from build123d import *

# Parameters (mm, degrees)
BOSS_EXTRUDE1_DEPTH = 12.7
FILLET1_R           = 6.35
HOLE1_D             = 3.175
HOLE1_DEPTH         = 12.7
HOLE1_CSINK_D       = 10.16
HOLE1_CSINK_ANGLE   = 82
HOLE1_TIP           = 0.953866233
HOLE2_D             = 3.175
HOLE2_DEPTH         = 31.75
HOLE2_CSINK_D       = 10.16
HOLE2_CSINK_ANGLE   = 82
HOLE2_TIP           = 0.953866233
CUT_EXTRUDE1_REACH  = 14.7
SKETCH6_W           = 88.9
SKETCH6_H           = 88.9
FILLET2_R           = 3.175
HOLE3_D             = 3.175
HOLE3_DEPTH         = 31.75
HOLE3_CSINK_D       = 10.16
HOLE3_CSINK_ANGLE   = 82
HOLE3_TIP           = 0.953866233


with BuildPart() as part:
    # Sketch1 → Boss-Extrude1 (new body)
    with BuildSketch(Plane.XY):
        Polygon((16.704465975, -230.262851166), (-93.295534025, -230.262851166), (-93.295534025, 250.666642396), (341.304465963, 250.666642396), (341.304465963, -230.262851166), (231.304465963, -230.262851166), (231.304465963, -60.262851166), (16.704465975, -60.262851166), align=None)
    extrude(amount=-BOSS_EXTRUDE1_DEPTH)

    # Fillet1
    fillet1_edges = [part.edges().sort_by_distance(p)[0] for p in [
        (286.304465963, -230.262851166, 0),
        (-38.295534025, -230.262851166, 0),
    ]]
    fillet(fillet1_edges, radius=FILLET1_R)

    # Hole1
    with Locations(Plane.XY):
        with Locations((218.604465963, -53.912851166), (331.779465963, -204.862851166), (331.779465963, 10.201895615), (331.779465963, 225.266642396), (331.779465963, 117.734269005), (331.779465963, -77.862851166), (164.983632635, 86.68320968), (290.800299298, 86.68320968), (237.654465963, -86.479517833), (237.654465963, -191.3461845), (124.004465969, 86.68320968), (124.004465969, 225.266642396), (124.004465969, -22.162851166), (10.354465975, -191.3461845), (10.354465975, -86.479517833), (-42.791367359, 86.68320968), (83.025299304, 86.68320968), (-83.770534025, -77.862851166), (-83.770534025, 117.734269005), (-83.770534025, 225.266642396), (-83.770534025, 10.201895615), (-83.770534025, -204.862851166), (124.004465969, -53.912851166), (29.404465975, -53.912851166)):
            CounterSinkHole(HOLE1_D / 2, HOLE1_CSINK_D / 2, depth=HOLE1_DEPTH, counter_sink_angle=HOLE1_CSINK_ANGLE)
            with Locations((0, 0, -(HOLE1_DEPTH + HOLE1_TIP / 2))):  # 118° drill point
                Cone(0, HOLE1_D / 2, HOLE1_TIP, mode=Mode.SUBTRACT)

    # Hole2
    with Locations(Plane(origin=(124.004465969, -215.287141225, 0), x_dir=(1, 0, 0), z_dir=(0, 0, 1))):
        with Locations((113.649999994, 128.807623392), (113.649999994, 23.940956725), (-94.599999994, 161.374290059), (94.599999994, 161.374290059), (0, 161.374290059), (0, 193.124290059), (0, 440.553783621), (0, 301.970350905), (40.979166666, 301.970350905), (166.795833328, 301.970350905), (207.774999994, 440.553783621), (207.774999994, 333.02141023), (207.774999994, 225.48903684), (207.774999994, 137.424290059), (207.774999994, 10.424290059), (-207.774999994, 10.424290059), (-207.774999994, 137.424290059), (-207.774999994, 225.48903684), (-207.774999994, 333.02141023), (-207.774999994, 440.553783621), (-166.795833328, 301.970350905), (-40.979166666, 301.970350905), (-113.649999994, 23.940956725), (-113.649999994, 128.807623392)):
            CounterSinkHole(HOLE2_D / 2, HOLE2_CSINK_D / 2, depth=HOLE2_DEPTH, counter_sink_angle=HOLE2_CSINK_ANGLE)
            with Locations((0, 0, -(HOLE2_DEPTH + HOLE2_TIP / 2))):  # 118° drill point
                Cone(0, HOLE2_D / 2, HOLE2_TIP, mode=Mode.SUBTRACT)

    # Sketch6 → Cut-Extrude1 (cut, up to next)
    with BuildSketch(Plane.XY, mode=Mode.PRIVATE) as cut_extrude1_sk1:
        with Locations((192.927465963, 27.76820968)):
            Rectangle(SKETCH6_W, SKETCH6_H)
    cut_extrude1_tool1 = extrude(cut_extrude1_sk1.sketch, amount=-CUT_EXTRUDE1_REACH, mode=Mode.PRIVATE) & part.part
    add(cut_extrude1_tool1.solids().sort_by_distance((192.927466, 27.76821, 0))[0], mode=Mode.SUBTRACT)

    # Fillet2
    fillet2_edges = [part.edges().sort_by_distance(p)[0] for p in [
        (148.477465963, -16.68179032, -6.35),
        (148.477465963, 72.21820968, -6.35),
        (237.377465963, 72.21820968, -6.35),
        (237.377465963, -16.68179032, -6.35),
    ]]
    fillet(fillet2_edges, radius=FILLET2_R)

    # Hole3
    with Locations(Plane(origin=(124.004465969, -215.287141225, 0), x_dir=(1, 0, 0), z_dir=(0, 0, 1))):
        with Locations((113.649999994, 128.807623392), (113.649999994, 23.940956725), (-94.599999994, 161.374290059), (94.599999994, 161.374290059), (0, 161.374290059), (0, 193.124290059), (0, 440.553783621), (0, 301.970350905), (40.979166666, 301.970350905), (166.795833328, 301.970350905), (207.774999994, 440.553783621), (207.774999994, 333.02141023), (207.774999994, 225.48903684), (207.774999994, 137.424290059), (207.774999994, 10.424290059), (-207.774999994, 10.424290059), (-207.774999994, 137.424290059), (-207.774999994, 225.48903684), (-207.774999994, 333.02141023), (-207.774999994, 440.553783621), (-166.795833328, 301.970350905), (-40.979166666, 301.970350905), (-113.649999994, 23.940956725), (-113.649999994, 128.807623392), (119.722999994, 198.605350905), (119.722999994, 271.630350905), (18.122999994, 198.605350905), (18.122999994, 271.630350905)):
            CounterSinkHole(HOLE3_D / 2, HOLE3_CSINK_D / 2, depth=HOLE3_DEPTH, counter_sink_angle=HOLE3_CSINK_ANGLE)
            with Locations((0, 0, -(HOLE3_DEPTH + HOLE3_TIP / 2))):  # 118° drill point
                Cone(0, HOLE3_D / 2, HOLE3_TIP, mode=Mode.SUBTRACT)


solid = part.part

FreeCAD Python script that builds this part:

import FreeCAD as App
import Part
import Sketcher
Q = App.Units.Quantity


def edges_at(feature, points):
    """Names of the edges that pass closest to the given points."""
    edges = feature.Shape.Edges
    near = lambda p: min(range(len(edges)), key=lambda i: edges[i].distToShape(Part.Vertex(*p))[0])
    return sorted({f"Edge{near(p) + 1}" for p in points})


def add_polygon(sketch, points):
    """Adds a closed chain of lines whose ends are joined by coincident constraints."""
    first, n = sketch.GeometryCount, len(points)
    for a, b in zip(points, points[1:] + points[:1]):
        sketch.addGeometry(Part.LineSegment(App.Vector(*a, 0), App.Vector(*b, 0)), False)
    for i in range(n):
        sketch.addConstraint(Sketcher.Constraint("Coincident", first + i, 2, first + (i + 1) % n, 1))

doc = App.newDocument("Part")
params = doc.addObject("Spreadsheet::Sheet", "Params")
for row, (alias, value) in enumerate([
    ("pad1_length", "0.5 in"),
    ("fillet_radius", "0.25 in"),
    ("sketch2_diameter", "0.125 in"),
    ("hole_diameter", "0.125 in"),
    ("hole_depth", "0.5 in"),
    ("hole_csink_diameter", "0.4 in"),
    ("sketch3_diameter", "0.125 in"),
    ("hole2_diameter", "0.125 in"),
    ("hole2_depth", "1.25 in"),
    ("hole2_csink_diameter", "0.4 in"),
    ("sketch4_width", "3.5 in"),
    ("fillet2_radius", "0.125 in"),
    ("sketch5_diameter", "0.125 in"),
    ("hole3_diameter", "0.125 in"),
    ("hole3_depth", "1.25 in"),
    ("hole3_csink_diameter", "0.4 in"),
], start=1):
    params.set(f"A{row}", alias)
    params.set(f"B{row}", "=" + value)
    params.setAlias(f"B{row}", alias)

body = doc.addObject("PartDesign::Body", "Body")

# Sketch on XY plane
sketch1 = doc.addObject("Sketcher::SketchObject", "Sketch")
body.addObject(sketch1)
sketch1.AttachmentSupport = (doc.XY_Plane, [""])
sketch1.MapMode = "FlatFace"
add_polygon(sketch1, [(-93.295534, -230.262851), (16.704466, -230.262851), (16.704466, -60.262851), (231.304466, -60.262851), (231.304466, -230.262851), (341.304466, -230.262851), (341.304466, 250.666642), (-93.295534, 250.666642)])  # lines 0-7
sketch1.addConstraint([
    Sketcher.Constraint("Horizontal", 0),
    Sketcher.Constraint("Vertical", 1),
    Sketcher.Constraint("Horizontal", 2),
    Sketcher.Constraint("Vertical", 3),
    Sketcher.Constraint("Horizontal", 4),
    Sketcher.Constraint("Vertical", 5),
    Sketcher.Constraint("Horizontal", 6),
    Sketcher.Constraint("Vertical", 7),
    Sketcher.Constraint("Horizontal", 0, 2, 3, 2),
    Sketcher.Constraint("Equal", 0, 4),
    Sketcher.Constraint("DistanceX", 0, 1, 0, 2, 110.0),
    Sketcher.Constraint("DistanceX", 2, 1, 2, 2, 214.6),
    Sketcher.Constraint("DistanceY", 1, 1, 1, 2, 170.0),
    Sketcher.Constraint("DistanceY", 5, 1, 5, 2, 480.929494),
    Sketcher.Constraint("DistanceY", 0, 2, -1, 1, 230.262851),
    Sketcher.Constraint("DistanceX", -1, 1, 0, 2, 16.704466),
])
pad1 = doc.addObject("PartDesign::Pad", "Pad")
body.addObject(pad1)
pad1.Profile = sketch1
pad1.setExpression("Length", "Params.pad1_length")
pad1.Reversed = True
doc.recompute()

fillet = doc.addObject("PartDesign::Fillet", "Fillet")
body.addObject(fillet)
fillet.Base = (pad1, edges_at(pad1, [(286.304, -230.263, 0), (-38.296, -230.263, 0)]))
fillet.setExpression("Radius", "Params.fillet_radius")

# Sketch on XY plane
sketch2 = doc.addObject("Sketcher::SketchObject", "Sketch001")
body.addObject(sketch2)
sketch2.AttachmentSupport = (doc.XY_Plane, [""])
sketch2.MapMode = "FlatFace"
sketch2.addGeometry([
    Part.Circle(App.Vector(218.604466, -53.912851, 0), App.Vector(0, 0, 1), 1.5875),  # 0
    Part.Circle(App.Vector(331.779466, -204.862851, 0), App.Vector(0, 0, 1), 1.5875),  # 1
    Part.Circle(App.Vector(331.779466, 10.201896, 0), App.Vector(0, 0, 1), 1.5875),  # 2
    Part.Circle(App.Vector(331.779466, 225.266642, 0), App.Vector(0, 0, 1), 1.5875),  # 3
    Part.Circle(App.Vector(331.779466, 117.734269, 0), App.Vector(0, 0, 1), 1.5875),  # 4
    Part.Circle(App.Vector(331.779466, -77.862851, 0), App.Vector(0, 0, 1), 1.5875),  # 5
    Part.Circle(App.Vector(164.983633, 86.68321, 0), App.Vector(0, 0, 1), 1.5875),  # 6
    Part.Circle(App.Vector(290.800299, 86.68321, 0), App.Vector(0, 0, 1), 1.5875),  # 7
    Part.Circle(App.Vector(237.654466, -86.479518, 0), App.Vector(0, 0, 1), 1.5875),  # 8
    Part.Circle(App.Vector(237.654466, -191.346184, 0), App.Vector(0, 0, 1), 1.5875),  # 9
    Part.Circle(App.Vector(124.004466, 86.68321, 0), App.Vector(0, 0, 1), 1.5875),  # 10
    Part.Circle(App.Vector(124.004466, 225.266642, 0), App.Vector(0, 0, 1), 1.5875),  # 11
    Part.Circle(App.Vector(124.004466, -22.162851, 0), App.Vector(0, 0, 1), 1.5875),  # 12
    Part.Circle(App.Vector(10.354466, -191.346184, 0), App.Vector(0, 0, 1), 1.5875),  # 13
    Part.Circle(App.Vector(10.354466, -86.479518, 0), App.Vector(0, 0, 1), 1.5875),  # 14
    Part.Circle(App.Vector(-42.791367, 86.68321, 0), App.Vector(0, 0, 1), 1.5875),  # 15
    Part.Circle(App.Vector(83.025299, 86.68321, 0), App.Vector(0, 0, 1), 1.5875),  # 16
    Part.Circle(App.Vector(-83.770534, -77.862851, 0), App.Vector(0, 0, 1), 1.5875),  # 17
    Part.Circle(App.Vector(-83.770534, 117.734269, 0), App.Vector(0, 0, 1), 1.5875),  # 18
    Part.Circle(App.Vector(-83.770534, 225.266642, 0), App.Vector(0, 0, 1), 1.5875),  # 19
    Part.Circle(App.Vector(-83.770534, 10.201896, 0), App.Vector(0, 0, 1), 1.5875),  # 20
    Part.Circle(App.Vector(-83.770534, -204.862851, 0), App.Vector(0, 0, 1), 1.5875),  # 21
    Part.Circle(App.Vector(124.004466, -53.912851, 0), App.Vector(0, 0, 1), 1.5875),  # 22
    Part.Circle(App.Vector(29.404466, -53.912851, 0), App.Vector(0, 0, 1), 1.5875),  # 23
], False)
sketch2.addConstraint([
    Sketcher.Constraint("Equal", 0, 1),
    Sketcher.Constraint("Equal", 1, 2),
    Sketcher.Constraint("Equal", 2, 3),
    Sketcher.Constraint("Equal", 3, 4),
    Sketcher.Constraint("Equal", 4, 5),
    Sketcher.Constraint("Equal", 5, 6),
    Sketcher.Constraint("Equal", 6, 7),
    Sketcher.Constraint("Equal", 7, 8),
    Sketcher.Constraint("Equal", 8, 9),
    Sketcher.Constraint("Equal", 9, 10),
    Sketcher.Constraint("Equal", 10, 11),
    Sketcher.Constraint("Equal", 11, 12),
    Sketcher.Constraint("Equal", 12, 13),
    Sketcher.Constraint("Equal", 13, 14),
    Sketcher.Constraint("Equal", 14, 15),
    Sketcher.Constraint("Equal", 15, 16),
    Sketcher.Constraint("Equal", 16, 17),
    Sketcher.Constraint("Equal", 17, 18),
    Sketcher.Constraint("Equal", 18, 19),
    Sketcher.Constraint("Equal", 19, 20),
    Sketcher.Constraint("Equal", 20, 21),
    Sketcher.Constraint("Equal", 21, 22),
    Sketcher.Constraint("Equal", 22, 23),
    Sketcher.Constraint("Horizontal", 6, 3, 7, 3),
    Sketcher.Constraint("Horizontal", 7, 3, 10, 3),
    Sketcher.Constraint("Horizontal", 3, 3, 11, 3),
    Sketcher.Constraint("Horizontal", 9, 3, 13, 3),
    Sketcher.Constraint("Horizontal", 8, 3, 14, 3),
    Sketcher.Constraint("Horizontal", 10, 3, 15, 3),
    Sketcher.Constraint("Horizontal", 15, 3, 16, 3),
    Sketcher.Constraint("Horizontal", 5, 3, 17, 3),
    Sketcher.Constraint("Horizontal", 4, 3, 18, 3),
    Sketcher.Constraint("Horizontal", 11, 3, 19, 3),
    Sketcher.Constraint("Horizontal", 2, 3, 20, 3),
    Sketcher.Constraint("Horizontal", 1, 3, 21, 3),
    Sketcher.Constraint("Horizontal", 0, 3, 22, 3),
    Sketcher.Constraint("Horizontal", 22, 3, 23, 3),
    Sketcher.Constraint("Vertical", 1, 3, 2, 3),
    Sketcher.Constraint("Vertical", 2, 3, 3, 3),
    Sketcher.Constraint("Vertical", 3, 3, 4, 3),
    Sketcher.Constraint("Vertical", 4, 3, 5, 3),
    Sketcher.Constraint("Vertical", 8, 3, 9, 3),
    Sketcher.Constraint("Vertical", 10, 3, 11, 3),
    Sketcher.Constraint("Vertical", 11, 3, 12, 3),
    Sketcher.Constraint("Vertical", 13, 3, 14, 3),
    Sketcher.Constraint("Vertical", 17, 3, 18, 3),
    Sketcher.Constraint("Vertical", 18, 3, 19, 3),
    Sketcher.Constraint("Vertical", 19, 3, 20, 3),
    Sketcher.Constraint("Vertical", 20, 3, 21, 3),
    Sketcher.Constraint("Vertical", 12, 3, 22, 3),
    Sketcher.Constraint("Diameter", 0, Q("0.125 in")),
    Sketcher.Constraint("DistanceY", 1, 3, 5, 3, Q("5 in")),
    Sketcher.Constraint("DistanceX", 0, 3, 8, 3, Q("0.75 in")),
    Sketcher.Constraint("DistanceY", 0, 3, 12, 3, Q("1.25 in")),
    Sketcher.Constraint("DistanceX", 14, 3, 23, 3, Q("0.75 in")),
    Sketcher.Constraint("DistanceX", -1, 1, 7, 3, 290.800299),
    Sketcher.Constraint("DistanceX", -1, 1, 16, 3, 83.025299),
    Sketcher.Constraint("DistanceX", 0, 3, 1, 3, 113.175),
    Sketcher.Constraint("DistanceY", 1, 3, 0, 3, 150.95),
    Sketcher.Constraint("DistanceX", 10, 3, 0, 3, 94.6),
    Sketcher.Constraint("DistanceX", 13, 3, 12, 3, 113.65),
    Sketcher.Constraint("DistanceX", 15, 3, 6, 3, 207.775),
    Sketcher.Constraint("DistanceX", 17, 3, 14, 3, 94.125),
    Sketcher.Constraint("DistanceY", 0, 3, -1, 1, 53.912851),
    Sketcher.Constraint("DistanceY", -1, 1, 4, 3, 117.734269),
    Sketcher.Constraint("DistanceY", -1, 1, 6, 3, 86.68321),
    Sketcher.Constraint("DistanceY", 9, 3, 2, 3, 201.54808),
    Sketcher.Constraint("DistanceX", -1, 1, 0, 3, 218.604466),
    Sketcher.Constraint("DistanceY", -1, 1, 2, 3, 10.201896),
    Sketcher.Constraint("DistanceY", -1, 1, 3, 3, 225.266642),
    Sketcher.Constraint("DistanceX", -1, 1, 6, 3, 164.983633),
    Sketcher.Constraint("DistanceY", 8, 3, -1, 1, 86.479518),
])
sketch2.setExpression("Constraints[50]", "Params.sketch2_diameter")
doc.recompute()
hole = doc.addObject("PartDesign::Hole", "Hole")
body.addObject(hole)
hole.Profile = sketch2
hole.ThreadType = "None"
hole.setExpression("Diameter", "Params.hole_diameter")
hole.DepthType = "Dimension"
hole.setExpression("Depth", "Params.hole_depth")
hole.DrillPoint = "Angled"
hole.DrillPointAngle = 118
hole.HoleCutType = "Countersink"
hole.setExpression("HoleCutDiameter", "Params.hole_csink_diameter")
hole.HoleCutCountersinkAngle = 82

# Sketch on XY plane
sketch3 = doc.addObject("Sketcher::SketchObject", "Sketch002")
body.addObject(sketch3)
sketch3.AttachmentSupport = (doc.XY_Plane, [""])
sketch3.MapMode = "FlatFace"
sketch3.addGeometry([
    Part.Circle(App.Vector(237.654466, -86.479518, 0), App.Vector(0, 0, 1), 1.5875),  # 0
    Part.Circle(App.Vector(237.654466, -191.346184, 0), App.Vector(0, 0, 1), 1.5875),  # 1
    Part.Circle(App.Vector(29.404466, -53.912851, 0), App.Vector(0, 0, 1), 1.5875),  # 2
    Part.Circle(App.Vector(218.604466, -53.912851, 0), App.Vector(0, 0, 1), 1.5875),  # 3
    Part.Circle(App.Vector(124.004466, -53.912851, 0), App.Vector(0, 0, 1), 1.5875),  # 4
    Part.Circle(App.Vector(124.004466, -22.162851, 0), App.Vector(0, 0, 1), 1.5875),  # 5
    Part.Circle(App.Vector(124.004466, 225.266642, 0), App.Vector(0, 0, 1), 1.5875),  # 6
    Part.Circle(App.Vector(124.004466, 86.68321, 0), App.Vector(0, 0, 1), 1.5875),  # 7
    Part.Circle(App.Vector(164.983633, 86.68321, 0), App.Vector(0, 0, 1), 1.5875),  # 8
    Part.Circle(App.Vector(290.800299, 86.68321, 0), App.Vector(0, 0, 1), 1.5875),  # 9
    Part.Circle(App.Vector(331.779466, 225.266642, 0), App.Vector(0, 0, 1), 1.5875),  # 10
    Part.Circle(App.Vector(331.779466, 117.734269, 0), App.Vector(0, 0, 1), 1.5875),  # 11
    Part.Circle(App.Vector(331.779466, 10.201896, 0), App.Vector(0, 0, 1), 1.5875),  # 12
    Part.Circle(App.Vector(331.779466, -77.862851, 0), App.Vector(0, 0, 1), 1.5875),  # 13
    Part.Circle(App.Vector(331.779466, -204.862851, 0), App.Vector(0, 0, 1), 1.5875),  # 14
    Part.Circle(App.Vector(-83.770534, -204.862851, 0), App.Vector(0, 0, 1), 1.5875),  # 15
    Part.Circle(App.Vector(-83.770534, -77.862851, 0), App.Vector(0, 0, 1), 1.5875),  # 16
    Part.Circle(App.Vector(-83.770534, 10.201896, 0), App.Vector(0, 0, 1), 1.5875),  # 17
    Part.Circle(App.Vector(-83.770534, 117.734269, 0), App.Vector(0, 0, 1), 1.5875),  # 18
    Part.Circle(App.Vector(-83.770534, 225.266642, 0), App.Vector(0, 0, 1), 1.5875),  # 19
    Part.Circle(App.Vector(-42.791367, 86.68321, 0), App.Vector(0, 0, 1), 1.5875),  # 20
    Part.Circle(App.Vector(83.025299, 86.68321, 0), App.Vector(0, 0, 1), 1.5875),  # 21
    Part.Circle(App.Vector(10.354466, -191.346184, 0), App.Vector(0, 0, 1), 1.5875),  # 22
    Part.Circle(App.Vector(10.354466, -86.479518, 0), App.Vector(0, 0, 1), 1.5875),  # 23
], False)
sketch3.addConstraint([
    Sketcher.Constraint("Equal", 0, 1),
    Sketcher.Constraint("Equal", 1, 2),
    Sketcher.Constraint("Equal", 2, 3),
    Sketcher.Constraint("Equal", 3, 4),
    Sketcher.Constraint("Equal", 4, 5),
    Sketcher.Constraint("Equal", 5, 6),
    Sketcher.Constraint("Equal", 6, 7),
    Sketcher.Constraint("Equal", 7, 8),
    Sketcher.Constraint("Equal", 8, 9),
    Sketcher.Constraint("Equal", 9, 10),
    Sketcher.Constraint("Equal", 10, 11),
    Sketcher.Constraint("Equal", 11, 12),
    Sketcher.Constraint("Equal", 12, 13),
    Sketcher.Constraint("Equal", 13, 14),
    Sketcher.Constraint("Equal", 14, 15),
    Sketcher.Constraint("Equal", 15, 16),
    Sketcher.Constraint("Equal", 16, 17),
    Sketcher.Constraint("Equal", 17, 18),
    Sketcher.Constraint("Equal", 18, 19),
    Sketcher.Constraint("Equal", 19, 20),
    Sketcher.Constraint("Equal", 20, 21),
    Sketcher.Constraint("Equal", 21, 22),
    Sketcher.Constraint("Equal", 22, 23),
    Sketcher.Constraint("Horizontal", 2, 3, 3, 3),
    Sketcher.Constraint("Horizontal", 3, 3, 4, 3),
    Sketcher.Constraint("Horizontal", 7, 3, 8, 3),
    Sketcher.Constraint("Horizontal", 8, 3, 9, 3),
    Sketcher.Constraint("Horizontal", 6, 3, 10, 3),
    Sketcher.Constraint("Horizontal", 14, 3, 15, 3),
    Sketcher.Constraint("Horizontal", 13, 3, 16, 3),
    Sketcher.Constraint("Horizontal", 12, 3, 17, 3),
    Sketcher.Constraint("Horizontal", 11, 3, 18, 3),
    Sketcher.Constraint("Horizontal", 10, 3, 19, 3),
    Sketcher.Constraint("Horizontal", 9, 3, 20, 3),
    Sketcher.Constraint("Horizontal", 20, 3, 21, 3),
    Sketcher.Constraint("Horizontal", 1, 3, 22, 3),
    Sketcher.Constraint("Horizontal", 0, 3, 23, 3),
    Sketcher.Constraint("Vertical", 0, 3, 1, 3),
    Sketcher.Constraint("Vertical", 4, 3, 5, 3),
    Sketcher.Constraint("Vertical", 5, 3, 6, 3),
    Sketcher.Constraint("Vertical", 6, 3, 7, 3),
    Sketcher.Constraint("Vertical", 10, 3, 11, 3),
    Sketcher.Constraint("Vertical", 11, 3, 12, 3),
    Sketcher.Constraint("Vertical", 12, 3, 13, 3),
    Sketcher.Constraint("Vertical", 13, 3, 14, 3),
    Sketcher.Constraint("Vertical", 15, 3, 16, 3),
    Sketcher.Constraint("Vertical", 16, 3, 17, 3),
    Sketcher.Constraint("Vertical", 17, 3, 18, 3),
    Sketcher.Constraint("Vertical", 18, 3, 19, 3),
    Sketcher.Constraint("Vertical", 22, 3, 23, 3),
    Sketcher.Constraint("Diameter", 0, Q("0.125 in")),
    Sketcher.Constraint("DistanceY", 14, 3, 13, 3, Q("5 in")),
    Sketcher.Constraint("DistanceX", 3, 3, 0, 3, Q("0.75 in")),
    Sketcher.Constraint("DistanceY", 4, 3, 5, 3, Q("1.25 in")),
    Sketcher.Constraint("DistanceX", 22, 3, 2, 3, Q("0.75 in")),
    Sketcher.Constraint("DistanceX", -1, 1, 9, 3, 290.800299),
    Sketcher.Constraint("DistanceX", -1, 1, 21, 3, 83.025299),
    Sketcher.Constraint("DistanceX", 2, 3, 0, 3, 208.25),
    Sketcher.Constraint("DistanceX", 2, 3, 4, 3, 94.6),
    Sketcher.Constraint("DistanceX", 6, 3, 10, 3, 207.775),
    Sketcher.Constraint("DistanceY", 13, 3, 3, 3, 23.95),
    Sketcher.Constraint("DistanceX", 15, 3, 2, 3, 113.175),
    Sketcher.Constraint("DistanceY", 2, 3, -1, 1, 53.912851),
    Sketcher.Constraint("DistanceY", -1, 1, 7, 3, 86.68321),
    Sketcher.Constraint("DistanceY", -1, 1, 11, 3, 117.734269),
    Sketcher.Constraint("DistanceY", 0, 3, 6, 3, 311.74616),
    Sketcher.Constraint("DistanceX", -1, 1, 0, 3, 237.654466),
    Sketcher.Constraint("DistanceY", 0, 3, -1, 1, 86.479518),
    Sketcher.Constraint("DistanceY", 1, 3, -1, 1, 191.346184),
    Sketcher.Constraint("DistanceX", -1, 1, 8, 3, 164.983633),
    Sketcher.Constraint("DistanceY", -1, 1, 12, 3, 10.201896),
    Sketcher.Constraint("DistanceX", 20, 3, -1, 1, 42.791367),
])
sketch3.setExpression("Constraints[50]", "Params.sketch3_diameter")
doc.recompute()
hole2 = doc.addObject("PartDesign::Hole", "Hole001")
body.addObject(hole2)
hole2.Profile = sketch3
hole2.ThreadType = "None"
hole2.setExpression("Diameter", "Params.hole2_diameter")
hole2.DepthType = "Dimension"
hole2.setExpression("Depth", "Params.hole2_depth")
hole2.DrillPoint = "Angled"
hole2.DrillPointAngle = 118
hole2.HoleCutType = "Countersink"
hole2.setExpression("HoleCutDiameter", "Params.hole2_csink_diameter")
hole2.HoleCutCountersinkAngle = 82

# Sketch on XY plane
sketch4 = doc.addObject("Sketcher::SketchObject", "Sketch003")
body.addObject(sketch4)
sketch4.AttachmentSupport = (doc.XY_Plane, [""])
sketch4.MapMode = "FlatFace"
add_polygon(sketch4, [(148.477466, 72.21821), (148.477466, -16.68179), (237.377466, -16.68179), (237.377466, 72.21821)])  # lines 0-3
sketch4.addConstraint([
    Sketcher.Constraint("Vertical", 0),
    Sketcher.Constraint("Horizontal", 1),
    Sketcher.Constraint("Vertical", 2),
    Sketcher.Constraint("Horizontal", 3),
    Sketcher.Constraint("Equal", 3, 0),
    Sketcher.Constraint("DistanceX", 1, 1, 1, 2, Q("3.5 in")),
    Sketcher.Constraint("DistanceY", 0, 2, -1, 1, 16.68179),
    Sketcher.Constraint("DistanceX", -1, 1, 0, 2, 148.477466),
])
sketch4.setExpression("Constraints[9]", "Params.sketch4_width")
pocket1 = doc.addObject("PartDesign::Pocket", "Pocket")
body.addObject(pocket1)
pocket1.Profile = sketch4
pocket1.Type = "UpToFirst"
doc.recompute()

fillet2 = doc.addObject("PartDesign::Fillet", "Fillet001")
body.addObject(fillet2)
fillet2.Base = (pocket1, edges_at(pocket1, [
    (148.477, -16.682, -6.35),
    (148.477, 72.218, -6.35),
    (237.377, 72.218, -6.35),
    (237.377, -16.682, -6.35),
]))
fillet2.setExpression("Radius", "Params.fillet2_radius")

# Sketch on XY plane
sketch5 = doc.addObject("Sketcher::SketchObject", "Sketch004")
body.addObject(sketch5)
sketch5.AttachmentSupport = (doc.XY_Plane, [""])
sketch5.MapMode = "FlatFace"
sketch5.addGeometry([
    Part.Circle(App.Vector(237.654466, -86.479518, 0), App.Vector(0, 0, 1), 1.5875),  # 0
    Part.Circle(App.Vector(237.654466, -191.346184, 0), App.Vector(0, 0, 1), 1.5875),  # 1
    Part.Circle(App.Vector(29.404466, -53.912851, 0), App.Vector(0, 0, 1), 1.5875),  # 2
    Part.Circle(App.Vector(218.604466, -53.912851, 0), App.Vector(0, 0, 1), 1.5875),  # 3
    Part.Circle(App.Vector(124.004466, -53.912851, 0), App.Vector(0, 0, 1), 1.5875),  # 4
    Part.Circle(App.Vector(124.004466, -22.162851, 0), App.Vector(0, 0, 1), 1.5875),  # 5
    Part.Circle(App.Vector(124.004466, 225.266642, 0), App.Vector(0, 0, 1), 1.5875),  # 6
    Part.Circle(App.Vector(124.004466, 86.68321, 0), App.Vector(0, 0, 1), 1.5875),  # 7
    Part.Circle(App.Vector(164.983633, 86.68321, 0), App.Vector(0, 0, 1), 1.5875),  # 8
    Part.Circle(App.Vector(290.800299, 86.68321, 0), App.Vector(0, 0, 1), 1.5875),  # 9
    Part.Circle(App.Vector(331.779466, 225.266642, 0), App.Vector(0, 0, 1), 1.5875),  # 10
    Part.Circle(App.Vector(331.779466, 117.734269, 0), App.Vector(0, 0, 1), 1.5875),  # 11
    Part.Circle(App.Vector(331.779466, 10.201896, 0), App.Vector(0, 0, 1), 1.5875),  # 12
    Part.Circle(App.Vector(331.779466, -77.862851, 0), App.Vector(0, 0, 1), 1.5875),  # 13
    Part.Circle(App.Vector(331.779466, -204.862851, 0), App.Vector(0, 0, 1), 1.5875),  # 14
    Part.Circle(App.Vector(-83.770534, -204.862851, 0), App.Vector(0, 0, 1), 1.5875),  # 15
    Part.Circle(App.Vector(-83.770534, -77.862851, 0), App.Vector(0, 0, 1), 1.5875),  # 16
    Part.Circle(App.Vector(-83.770534, 10.201896, 0), App.Vector(0, 0, 1), 1.5875),  # 17
    Part.Circle(App.Vector(-83.770534, 117.734269, 0), App.Vector(0, 0, 1), 1.5875),  # 18
    Part.Circle(App.Vector(-83.770534, 225.266642, 0), App.Vector(0, 0, 1), 1.5875),  # 19
    Part.Circle(App.Vector(-42.791367, 86.68321, 0), App.Vector(0, 0, 1), 1.5875),  # 20
    Part.Circle(App.Vector(83.025299, 86.68321, 0), App.Vector(0, 0, 1), 1.5875),  # 21
    Part.Circle(App.Vector(10.354466, -191.346184, 0), App.Vector(0, 0, 1), 1.5875),  # 22
    Part.Circle(App.Vector(10.354466, -86.479518, 0), App.Vector(0, 0, 1), 1.5875),  # 23
    Part.Circle(App.Vector(243.727466, -16.68179, 0), App.Vector(0, 0, 1), 1.5875),  # 24
    Part.Circle(App.Vector(243.727466, 56.34321, 0), App.Vector(0, 0, 1), 1.5875),  # 25
    Part.Circle(App.Vector(142.127466, -16.68179, 0), App.Vector(0, 0, 1), 1.5875),  # 26
    Part.Circle(App.Vector(142.127466, 56.34321, 0), App.Vector(0, 0, 1), 1.5875),  # 27
], False)
sketch5.addConstraint([
    Sketcher.Constraint("Equal", 0, 1),
    Sketcher.Constraint("Equal", 1, 2),
    Sketcher.Constraint("Equal", 2, 3),
    Sketcher.Constraint("Equal", 3, 4),
    Sketcher.Constraint("Equal", 4, 5),
    Sketcher.Constraint("Equal", 5, 6),
    Sketcher.Constraint("Equal", 6, 7),
    Sketcher.Constraint("Equal", 7, 8),
    Sketcher.Constraint("Equal", 8, 9),
    Sketcher.Constraint("Equal", 9, 10),
    Sketcher.Constraint("Equal", 10, 11),
    Sketcher.Constraint("Equal", 11, 12),
    Sketcher.Constraint("Equal", 12, 13),
    Sketcher.Constraint("Equal", 13, 14),
    Sketcher.Constraint("Equal", 14, 15),
    Sketcher.Constraint("Equal", 15, 16),
    Sketcher.Constraint("Equal", 16, 17),
    Sketcher.Constraint("Equal", 17, 18),
    Sketcher.Constraint("Equal", 18, 19),
    Sketcher.Constraint("Equal", 19, 20),
    Sketcher.Constraint("Equal", 20, 21),
    Sketcher.Constraint("Equal", 21, 22),
    Sketcher.Constraint("Equal", 22, 23),
    Sketcher.Constraint("Equal", 23, 24),
    Sketcher.Constraint("Equal", 24, 25),
    Sketcher.Constraint("Equal", 25, 26),
    Sketcher.Constraint("Equal", 26, 27),
    Sketcher.Constraint("Horizontal", 2, 3, 3, 3),
    Sketcher.Constraint("Horizontal", 3, 3, 4, 3),
    Sketcher.Constraint("Horizontal", 7, 3, 8, 3),
    Sketcher.Constraint("Horizontal", 8, 3, 9, 3),
    Sketcher.Constraint("Horizontal", 6, 3, 10, 3),
    Sketcher.Constraint("Horizontal", 14, 3, 15, 3),
    Sketcher.Constraint("Horizontal", 13, 3, 16, 3),
    Sketcher.Constraint("Horizontal", 12, 3, 17, 3),
    Sketcher.Constraint("Horizontal", 11, 3, 18, 3),
    Sketcher.Constraint("Horizontal", 10, 3, 19, 3),
    Sketcher.Constraint("Horizontal", 9, 3, 20, 3),
    Sketcher.Constraint("Horizontal", 20, 3, 21, 3),
    Sketcher.Constraint("Horizontal", 1, 3, 22, 3),
    Sketcher.Constraint("Horizontal", 0, 3, 23, 3),
    Sketcher.Constraint("Horizontal", 24, 3, 26, 3),
    Sketcher.Constraint("Horizontal", 25, 3, 27, 3),
    Sketcher.Constraint("Vertical", 0, 3, 1, 3),
    Sketcher.Constraint("Vertical", 4, 3, 5, 3),
    Sketcher.Constraint("Vertical", 5, 3, 6, 3),
    Sketcher.Constraint("Vertical", 6, 3, 7, 3),
    Sketcher.Constraint("Vertical", 10, 3, 11, 3),
    Sketcher.Constraint("Vertical", 11, 3, 12, 3),
    Sketcher.Constraint("Vertical", 12, 3, 13, 3),
    Sketcher.Constraint("Vertical", 13, 3, 14, 3),
    Sketcher.Constraint("Vertical", 15, 3, 16, 3),
    Sketcher.Constraint("Vertical", 16, 3, 17, 3),
    Sketcher.Constraint("Vertical", 17, 3, 18, 3),
    Sketcher.Constraint("Vertical", 18, 3, 19, 3),
    Sketcher.Constraint("Vertical", 22, 3, 23, 3),
    Sketcher.Constraint("Vertical", 24, 3, 25, 3),
    Sketcher.Constraint("Vertical", 26, 3, 27, 3),
    Sketcher.Constraint("Diameter", 0, Q("0.125 in")),
    Sketcher.Constraint("DistanceY", 14, 3, 13, 3, Q("5 in")),
    Sketcher.Constraint("DistanceX", 26, 3, 24, 3, Q("4 in")),
    Sketcher.Constraint("DistanceX", 3, 3, 0, 3, Q("0.75 in")),
    Sketcher.Constraint("DistanceY", 4, 3, 5, 3, Q("1.25 in")),
    Sketcher.Constraint("DistanceX", 22, 3, 2, 3, Q("0.75 in")),
    Sketcher.Constraint("DistanceY", 24, 3, 25, 3, Q("2.875 in")),
    Sketcher.Constraint("DistanceX", -1, 1, 9, 3, 290.800299),
    Sketcher.Constraint("DistanceX", -1, 1, 21, 3, 83.025299),
    Sketcher.Constraint("DistanceX", 2, 3, 0, 3, 208.25),
    Sketcher.Constraint("DistanceX", 2, 3, 4, 3, 94.6),
    Sketcher.Constraint("DistanceX", 6, 3, 10, 3, 207.775),
    Sketcher.Constraint("DistanceY", 13, 3, 3, 3, 23.95),
    Sketcher.Constraint("DistanceX", 15, 3, 2, 3, 113.175),
    Sketcher.Constraint("DistanceX", 3, 3, 24, 3, 25.123),
    Sketcher.Constraint("DistanceY", 24, 3, 9, 3, 103.365),
    Sketcher.Constraint("DistanceY", 2, 3, -1, 1, 53.912851),
    Sketcher.Constraint("DistanceY", -1, 1, 7, 3, 86.68321),
    Sketcher.Constraint("DistanceY", -1, 1, 11, 3, 117.734269),
    Sketcher.Constraint("DistanceY", 0, 3, 6, 3, 311.74616),
    Sketcher.Constraint("DistanceX", -1, 1, 0, 3, 237.654466),
    Sketcher.Constraint("DistanceY", 0, 3, -1, 1, 86.479518),
    Sketcher.Constraint("DistanceY", 1, 3, -1, 1, 191.346184),
    Sketcher.Constraint("DistanceX", -1, 1, 8, 3, 164.983633),
    Sketcher.Constraint("DistanceY", -1, 1, 12, 3, 10.201896),
    Sketcher.Constraint("DistanceX", 20, 3, -1, 1, 42.791367),
])
sketch5.setExpression("Constraints[58]", "Params.sketch5_diameter")
doc.recompute()
hole3 = doc.addObject("PartDesign::Hole", "Hole002")
body.addObject(hole3)
hole3.Profile = sketch5
hole3.ThreadType = "None"
hole3.setExpression("Diameter", "Params.hole3_diameter")
hole3.DepthType = "Dimension"
hole3.setExpression("Depth", "Params.hole3_depth")
hole3.DrillPoint = "Angled"
hole3.DrillPointAngle = 118
hole3.HoleCutType = "Countersink"
hole3.setExpression("HoleCutDiameter", "Params.hole3_csink_diameter")
hole3.HoleCutCountersinkAngle = 82

doc.recompute()
